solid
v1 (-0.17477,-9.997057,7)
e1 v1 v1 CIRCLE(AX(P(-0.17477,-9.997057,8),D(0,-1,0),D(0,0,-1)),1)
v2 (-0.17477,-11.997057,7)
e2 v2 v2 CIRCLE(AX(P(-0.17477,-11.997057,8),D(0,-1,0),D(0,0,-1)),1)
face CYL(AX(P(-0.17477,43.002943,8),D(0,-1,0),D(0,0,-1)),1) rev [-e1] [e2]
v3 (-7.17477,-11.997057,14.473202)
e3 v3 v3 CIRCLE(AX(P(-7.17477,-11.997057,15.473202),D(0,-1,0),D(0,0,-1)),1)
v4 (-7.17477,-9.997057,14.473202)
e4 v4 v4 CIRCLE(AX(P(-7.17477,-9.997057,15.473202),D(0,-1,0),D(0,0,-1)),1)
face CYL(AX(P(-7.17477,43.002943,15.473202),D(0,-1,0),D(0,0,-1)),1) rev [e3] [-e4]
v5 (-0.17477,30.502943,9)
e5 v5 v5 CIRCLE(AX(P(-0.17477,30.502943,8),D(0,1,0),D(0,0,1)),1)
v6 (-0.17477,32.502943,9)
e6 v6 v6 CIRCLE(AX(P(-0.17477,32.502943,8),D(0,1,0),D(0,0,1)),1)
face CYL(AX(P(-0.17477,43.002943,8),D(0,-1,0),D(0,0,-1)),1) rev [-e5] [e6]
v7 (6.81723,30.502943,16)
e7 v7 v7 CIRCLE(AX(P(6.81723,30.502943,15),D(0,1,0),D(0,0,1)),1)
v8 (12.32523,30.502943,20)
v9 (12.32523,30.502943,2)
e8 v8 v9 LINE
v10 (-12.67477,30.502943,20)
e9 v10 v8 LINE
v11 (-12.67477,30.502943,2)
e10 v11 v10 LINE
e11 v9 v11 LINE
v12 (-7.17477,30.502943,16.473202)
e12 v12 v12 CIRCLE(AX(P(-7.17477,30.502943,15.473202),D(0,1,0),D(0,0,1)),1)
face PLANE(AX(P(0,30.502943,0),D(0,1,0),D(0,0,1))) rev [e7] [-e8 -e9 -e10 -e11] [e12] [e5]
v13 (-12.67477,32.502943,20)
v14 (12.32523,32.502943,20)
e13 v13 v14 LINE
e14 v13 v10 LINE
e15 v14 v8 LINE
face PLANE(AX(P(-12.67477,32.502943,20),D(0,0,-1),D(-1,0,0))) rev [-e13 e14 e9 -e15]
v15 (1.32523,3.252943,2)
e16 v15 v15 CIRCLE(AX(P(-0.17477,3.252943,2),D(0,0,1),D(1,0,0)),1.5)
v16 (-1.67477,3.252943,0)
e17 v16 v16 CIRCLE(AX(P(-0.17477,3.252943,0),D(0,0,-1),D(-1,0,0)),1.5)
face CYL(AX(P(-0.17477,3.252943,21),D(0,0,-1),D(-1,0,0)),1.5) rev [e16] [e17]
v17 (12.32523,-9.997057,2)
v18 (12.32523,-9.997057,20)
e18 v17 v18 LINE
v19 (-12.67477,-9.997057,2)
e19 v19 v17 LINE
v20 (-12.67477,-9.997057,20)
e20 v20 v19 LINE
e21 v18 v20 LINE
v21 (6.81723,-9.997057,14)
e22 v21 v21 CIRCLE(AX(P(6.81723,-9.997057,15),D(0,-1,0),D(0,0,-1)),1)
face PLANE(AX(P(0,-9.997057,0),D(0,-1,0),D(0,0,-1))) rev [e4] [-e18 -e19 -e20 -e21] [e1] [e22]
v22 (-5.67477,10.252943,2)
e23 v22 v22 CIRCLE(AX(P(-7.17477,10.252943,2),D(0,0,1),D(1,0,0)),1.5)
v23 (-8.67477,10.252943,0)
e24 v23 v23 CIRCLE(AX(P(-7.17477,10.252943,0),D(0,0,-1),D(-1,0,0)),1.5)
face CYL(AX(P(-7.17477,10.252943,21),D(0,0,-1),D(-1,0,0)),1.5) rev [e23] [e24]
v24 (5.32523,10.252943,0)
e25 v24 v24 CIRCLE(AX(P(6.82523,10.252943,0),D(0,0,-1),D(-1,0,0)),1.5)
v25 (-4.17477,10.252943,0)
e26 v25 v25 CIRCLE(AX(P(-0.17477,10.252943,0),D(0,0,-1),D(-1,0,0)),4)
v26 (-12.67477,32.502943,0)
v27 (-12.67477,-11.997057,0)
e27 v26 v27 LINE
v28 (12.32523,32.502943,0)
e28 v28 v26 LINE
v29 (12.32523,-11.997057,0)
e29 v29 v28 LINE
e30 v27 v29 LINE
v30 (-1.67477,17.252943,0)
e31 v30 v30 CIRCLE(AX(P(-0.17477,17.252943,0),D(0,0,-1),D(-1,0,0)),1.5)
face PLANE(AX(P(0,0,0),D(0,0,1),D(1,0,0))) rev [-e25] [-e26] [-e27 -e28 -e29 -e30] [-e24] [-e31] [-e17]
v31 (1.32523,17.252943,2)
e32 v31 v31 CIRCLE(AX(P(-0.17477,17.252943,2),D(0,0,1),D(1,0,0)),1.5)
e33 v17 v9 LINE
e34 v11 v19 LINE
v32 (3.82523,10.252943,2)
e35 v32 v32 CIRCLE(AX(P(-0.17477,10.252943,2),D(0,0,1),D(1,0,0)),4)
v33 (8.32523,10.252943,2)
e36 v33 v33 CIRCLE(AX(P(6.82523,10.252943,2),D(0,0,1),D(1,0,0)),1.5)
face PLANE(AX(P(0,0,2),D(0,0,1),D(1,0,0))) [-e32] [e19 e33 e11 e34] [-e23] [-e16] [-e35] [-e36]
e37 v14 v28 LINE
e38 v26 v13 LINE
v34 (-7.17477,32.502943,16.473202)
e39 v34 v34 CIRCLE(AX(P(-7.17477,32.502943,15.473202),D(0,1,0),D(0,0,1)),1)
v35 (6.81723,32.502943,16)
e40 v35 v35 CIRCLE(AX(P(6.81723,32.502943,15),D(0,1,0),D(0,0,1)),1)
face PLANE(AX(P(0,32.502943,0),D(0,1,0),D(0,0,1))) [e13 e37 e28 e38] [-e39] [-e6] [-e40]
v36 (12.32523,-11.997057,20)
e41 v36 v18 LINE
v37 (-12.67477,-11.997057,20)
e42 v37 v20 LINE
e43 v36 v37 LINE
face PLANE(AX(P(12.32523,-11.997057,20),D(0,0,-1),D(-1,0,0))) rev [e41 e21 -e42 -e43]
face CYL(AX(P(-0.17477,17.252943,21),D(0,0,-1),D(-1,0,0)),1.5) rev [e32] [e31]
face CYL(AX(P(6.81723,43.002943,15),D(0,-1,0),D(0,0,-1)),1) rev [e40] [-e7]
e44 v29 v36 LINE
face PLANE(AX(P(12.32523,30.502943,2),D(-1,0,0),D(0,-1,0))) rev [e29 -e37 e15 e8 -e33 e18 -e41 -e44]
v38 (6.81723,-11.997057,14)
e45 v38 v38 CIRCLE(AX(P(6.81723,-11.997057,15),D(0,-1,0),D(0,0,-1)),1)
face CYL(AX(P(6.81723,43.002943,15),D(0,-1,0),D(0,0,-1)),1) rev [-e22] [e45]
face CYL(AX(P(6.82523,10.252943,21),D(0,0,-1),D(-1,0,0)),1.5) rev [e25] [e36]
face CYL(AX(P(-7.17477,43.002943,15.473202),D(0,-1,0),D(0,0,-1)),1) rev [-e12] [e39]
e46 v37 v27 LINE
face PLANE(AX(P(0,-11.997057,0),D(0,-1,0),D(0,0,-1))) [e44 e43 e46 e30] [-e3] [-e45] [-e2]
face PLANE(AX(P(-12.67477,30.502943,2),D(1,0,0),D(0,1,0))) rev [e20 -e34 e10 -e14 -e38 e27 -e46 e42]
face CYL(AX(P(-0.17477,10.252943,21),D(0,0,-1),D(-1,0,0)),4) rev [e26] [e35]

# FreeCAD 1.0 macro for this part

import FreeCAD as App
import Part
import Sketcher
Q = App.Units.Quantity


def add_polygon(sketch, points):
    """Adds a closed chain of lines whose ends are joined by coincident constraints."""
    first, n = sketch.GeometryCount, len(points)
    for a, b in zip(points, points[1:] + points[:1]):
        sketch.addGeometry(Part.LineSegment(App.Vector(*a, 0), App.Vector(*b, 0)), False)
    for i in range(n):
        sketch.addConstraint(Sketcher.Constraint("Coincident", first + i, 2, first + (i + 1) % n, 1))

doc = App.newDocument("Part")
body = doc.addObject("PartDesign::Body", "Body")

sketch1 = body.newObject("Sketcher::SketchObject", "Sketch")
sketch1.AttachmentSupport = (doc.getObject("XY_Plane"), [""])
sketch1.MapMode = "FlatFace"
add_polygon(sketch1, [(-12.67477, 30.502943), (-12.67477, -9.997057), (12.32523, -9.997057), (12.32523, 30.502943)])
sketch1.addConstraint(Sketcher.Constraint("Vertical", 0))
sketch1.addConstraint(Sketcher.Constraint("Horizontal", 1))
sketch1.addConstraint(Sketcher.Constraint("Vertical", 2))
sketch1.addConstraint(Sketcher.Constraint("Horizontal", 3))
sketch1.addConstraint(Sketcher.Constraint("DistanceX", 1, 1, 1, 2, Q("25 mm")))
sketch1.addConstraint(Sketcher.Constraint("DistanceY", 0, 2, 0, 1, Q("40.5 mm")))
sketch1.addConstraint(Sketcher.Constraint("DistanceX", 0, 2, -1, 1, Q("12.67477 mm")))
sketch1.addConstraint(Sketcher.Constraint("DistanceY", 0, 2, -1, 1, Q("9.997057 mm")))
pad1 = body.newObject("PartDesign::Pad", "Pad")
pad1.Profile = sketch1
pad1.Length = 2

sketch2 = body.newObject("Sketcher::SketchObject", "Sketch001")
sketch2.AttachmentSupport = (doc.getObject("XZ_Plane"), [""])
sketch2.MapMode = "FlatFace"
sketch2.AttachmentOffset = App.Placement(App.Vector(0, 0, -30.502943), App.Rotation())
add_polygon(sketch2, [(-12.67477, 0), (-12.67477, 20), (12.32523, 20), (12.32523, 0)])
sketch2.addConstraint(Sketcher.Constraint("Vertical", 0))
sketch2.addConstraint(Sketcher.Constraint("Horizontal", 1))
sketch2.addConstraint(Sketcher.Constraint("Vertical", 2))
sketch2.addConstraint(Sketcher.Constraint("Horizontal", 3))
sketch2.addConstraint(Sketcher.Constraint("PointOnObject", 2, 2, -1))
sketch2.addConstraint(Sketcher.Constraint("DistanceX", 1, 1, 1, 2, Q("25 mm")))
sketch2.addConstraint(Sketcher.Constraint("DistanceY", 0, 1, 0, 2, Q("20 mm")))
sketch2.addConstraint(Sketcher.Constraint("DistanceX", 0, 2, -1, 1, Q("12.67477 mm")))
pad2 = body.newObject("PartDesign::Pad", "Pad001")
pad2.Profile = sketch2
pad2.Length = 2
pad2.Reversed = True

sketch3 = body.newObject("Sketcher::SketchObject", "Sketch002")
sketch3.AttachmentSupport = (doc.getObject("XZ_Plane"), [""])
sketch3.MapMode = "FlatFace"
sketch3.AttachmentOffset = App.Placement(App.Vector(0, 0, 9.997057), App.Rotation())
add_polygon(sketch3, [(12.32523, 0), (12.32523, 20), (-12.67477, 20), (-12.67477, 0)])
sketch3.addConstraint(Sketcher.Constraint("Vertical", 0))
sketch3.addConstraint(Sketcher.Constraint("Horizontal", 1))
sketch3.addConstraint(Sketcher.Constraint("Vertical", 2))
sketch3.addConstraint(Sketcher.Constraint("Horizontal", 3))
sketch3.addConstraint(Sketcher.Constraint("PointOnObject", 2, 2, -1))
sketch3.addConstraint(Sketcher.Constraint("DistanceX", 1, 2, 1, 1, Q("25 mm")))
sketch3.addConstraint(Sketcher.Constraint("DistanceY", 0, 1, 0, 2, Q("20 mm")))
sketch3.addConstraint(Sketcher.Constraint("DistanceX", -1, 1, 0, 2, Q("12.32523 mm")))
pad3 = body.newObject("PartDesign::Pad", "Pad002")
pad3.Profile = sketch3
pad3.Length = 2

sketch4 = body.newObject("Sketcher::SketchObject", "Sketch003")
sketch4.AttachmentSupport = (doc.getObject("XY_Plane"), [""])
sketch4.MapMode = "FlatFace"
sketch4.addGeometry(Part.Circle(App.Vector(-0.17477, 10.252943, 0), App.Vector(0, 0, 1), 4), False)
sketch4.addConstraint(Sketcher.Constraint("Diameter", 0, Q("8 mm")))
sketch4.addConstraint(Sketcher.Constraint("DistanceX", 0, 3, -1, 1, Q("0.17477 mm")))
sketch4.addConstraint(Sketcher.Constraint("DistanceY", -1, 1, 0, 3, Q("10.252943 mm")))
pocket1 = body.newObject("PartDesign::Pocket", "Pocket")
pocket1.Profile = sketch4
pocket1.Length = 21
pocket1.Reversed = True

sketch5 = body.newObject("Sketcher::SketchObject", "Sketch004")
sketch5.AttachmentSupport = (doc.getObject("XY_Plane"), [""])
sketch5.MapMode = "FlatFace"
sketch5.addGeometry(Part.Circle(App.Vector(-7.17477, 10.252943, 0), App.Vector(0, 0, 1), 1.5), False)
sketch5.addGeometry(Part.Circle(App.Vector(-0.17477, 3.252943, 0), App.Vector(0, 0, 1), 1.5), False)
sketch5.addGeometry(Part.Circle(App.Vector(6.82523, 10.252943, 0), App.Vector(0, 0, 1), 1.5), False)
sketch5.addGeometry(Part.Circle(App.Vector(-0.17477, 17.252943, 0), App.Vector(0, 0, 1), 1.5), False)
sketch5.addConstraint(Sketcher.Constraint("Equal", 0, 1))
sketch5.addConstraint(Sketcher.Constraint("Equal", 1, 2))
sketch5.addConstraint(Sketcher.Constraint("Equal", 2, 3))
sketch5.addConstraint(Sketcher.Constraint("Horizontal", 0, 3, 2, 3))
sketch5.addConstraint(Sketcher.Constraint("Vertical", 1, 3, 3, 3))
sketch5.addConstraint(Sketcher.Constraint("Diameter", 0, Q("3 mm")))
sketch5.addConstraint(Sketcher.Constraint("DistanceX", 0, 3, 1, 3, Q("7 mm")))
sketch5.addConstraint(Sketcher.Constraint("DistanceY", 1, 3, 0, 3, Q("7 mm")))
sketch5.addConstraint(Sketcher.Constraint("DistanceX", 1, 3, 2, 3, Q("7 mm")))
sketch5.addConstraint(Sketcher.Constraint("DistanceY", 0, 3, 3, 3, Q("7 mm")))
sketch5.addConstraint(Sketcher.Constraint("DistanceX", 0, 3, -1, 1, Q("7.17477 mm")))
sketch5.addConstraint(Sketcher.Constraint("DistanceY", -1, 1, 0, 3, Q("10.252943 mm")))
pocket2 = body.newObject("PartDesign::Pocket", "Pocket001")
pocket2.Profile = sketch5
pocket2.Length = 21
pocket2.Reversed = True

sketch6 = body.newObject("Sketcher::SketchObject", "Sketch005")
sketch6.AttachmentSupport = (doc.getObject("XZ_Plane"), [""])
sketch6.MapMode = "FlatFace"
sketch6.AttachmentOffset = App.Placement(App.Vector(0, 0, 11.997057), App.Rotation())
sketch6.addGeometry(Part.Circle(App.Vector(-7.17477, 15.473202, 0), App.Vector(0, 0, 1), 1), False)
sketch6.addGeometry(Part.Circle(App.Vector(6.81723, 15, 0), App.Vector(0, 0, 1), 1), False)
sketch6.addGeometry(Part.Circle(App.Vector(-0.17477, 8, 0), App.Vector(0, 0, 1), 1), False)
sketch6.addConstraint(Sketcher.Constraint("Equal", 0, 1))
sketch6.addConstraint(Sketcher.Constraint("Equal", 1, 2))
sketch6.addConstraint(Sketcher.Constraint("Diameter", 0, Q("2 mm")))
sketch6.addConstraint(Sketcher.Constraint("DistanceY", -1, 1, 1, 3, Q("15 mm")))
sketch6.addConstraint(Sketcher.Constraint("DistanceY", -1, 1, 2, 3, Q("8 mm")))
sketch6.addConstraint(Sketcher.Constraint("DistanceX", 0, 3, 2, 3, Q("7 mm")))
sketch6.addConstraint(Sketcher.Constraint("DistanceX", 0, 3, 1, 3, Q("13.992001 mm")))
sketch6.addConstraint(Sketcher.Constraint("DistanceX", 0, 3, -1, 1, Q("7.17477 mm")))
sketch6.addConstraint(Sketcher.Constraint("DistanceY", -1, 1, 0, 3, Q("15.473202 mm")))
pocket3 = body.newObject("PartDesign::Pocket", "Pocket002")
pocket3.Profile = sketch6
pocket3.Length = 55

doc.recompute()
